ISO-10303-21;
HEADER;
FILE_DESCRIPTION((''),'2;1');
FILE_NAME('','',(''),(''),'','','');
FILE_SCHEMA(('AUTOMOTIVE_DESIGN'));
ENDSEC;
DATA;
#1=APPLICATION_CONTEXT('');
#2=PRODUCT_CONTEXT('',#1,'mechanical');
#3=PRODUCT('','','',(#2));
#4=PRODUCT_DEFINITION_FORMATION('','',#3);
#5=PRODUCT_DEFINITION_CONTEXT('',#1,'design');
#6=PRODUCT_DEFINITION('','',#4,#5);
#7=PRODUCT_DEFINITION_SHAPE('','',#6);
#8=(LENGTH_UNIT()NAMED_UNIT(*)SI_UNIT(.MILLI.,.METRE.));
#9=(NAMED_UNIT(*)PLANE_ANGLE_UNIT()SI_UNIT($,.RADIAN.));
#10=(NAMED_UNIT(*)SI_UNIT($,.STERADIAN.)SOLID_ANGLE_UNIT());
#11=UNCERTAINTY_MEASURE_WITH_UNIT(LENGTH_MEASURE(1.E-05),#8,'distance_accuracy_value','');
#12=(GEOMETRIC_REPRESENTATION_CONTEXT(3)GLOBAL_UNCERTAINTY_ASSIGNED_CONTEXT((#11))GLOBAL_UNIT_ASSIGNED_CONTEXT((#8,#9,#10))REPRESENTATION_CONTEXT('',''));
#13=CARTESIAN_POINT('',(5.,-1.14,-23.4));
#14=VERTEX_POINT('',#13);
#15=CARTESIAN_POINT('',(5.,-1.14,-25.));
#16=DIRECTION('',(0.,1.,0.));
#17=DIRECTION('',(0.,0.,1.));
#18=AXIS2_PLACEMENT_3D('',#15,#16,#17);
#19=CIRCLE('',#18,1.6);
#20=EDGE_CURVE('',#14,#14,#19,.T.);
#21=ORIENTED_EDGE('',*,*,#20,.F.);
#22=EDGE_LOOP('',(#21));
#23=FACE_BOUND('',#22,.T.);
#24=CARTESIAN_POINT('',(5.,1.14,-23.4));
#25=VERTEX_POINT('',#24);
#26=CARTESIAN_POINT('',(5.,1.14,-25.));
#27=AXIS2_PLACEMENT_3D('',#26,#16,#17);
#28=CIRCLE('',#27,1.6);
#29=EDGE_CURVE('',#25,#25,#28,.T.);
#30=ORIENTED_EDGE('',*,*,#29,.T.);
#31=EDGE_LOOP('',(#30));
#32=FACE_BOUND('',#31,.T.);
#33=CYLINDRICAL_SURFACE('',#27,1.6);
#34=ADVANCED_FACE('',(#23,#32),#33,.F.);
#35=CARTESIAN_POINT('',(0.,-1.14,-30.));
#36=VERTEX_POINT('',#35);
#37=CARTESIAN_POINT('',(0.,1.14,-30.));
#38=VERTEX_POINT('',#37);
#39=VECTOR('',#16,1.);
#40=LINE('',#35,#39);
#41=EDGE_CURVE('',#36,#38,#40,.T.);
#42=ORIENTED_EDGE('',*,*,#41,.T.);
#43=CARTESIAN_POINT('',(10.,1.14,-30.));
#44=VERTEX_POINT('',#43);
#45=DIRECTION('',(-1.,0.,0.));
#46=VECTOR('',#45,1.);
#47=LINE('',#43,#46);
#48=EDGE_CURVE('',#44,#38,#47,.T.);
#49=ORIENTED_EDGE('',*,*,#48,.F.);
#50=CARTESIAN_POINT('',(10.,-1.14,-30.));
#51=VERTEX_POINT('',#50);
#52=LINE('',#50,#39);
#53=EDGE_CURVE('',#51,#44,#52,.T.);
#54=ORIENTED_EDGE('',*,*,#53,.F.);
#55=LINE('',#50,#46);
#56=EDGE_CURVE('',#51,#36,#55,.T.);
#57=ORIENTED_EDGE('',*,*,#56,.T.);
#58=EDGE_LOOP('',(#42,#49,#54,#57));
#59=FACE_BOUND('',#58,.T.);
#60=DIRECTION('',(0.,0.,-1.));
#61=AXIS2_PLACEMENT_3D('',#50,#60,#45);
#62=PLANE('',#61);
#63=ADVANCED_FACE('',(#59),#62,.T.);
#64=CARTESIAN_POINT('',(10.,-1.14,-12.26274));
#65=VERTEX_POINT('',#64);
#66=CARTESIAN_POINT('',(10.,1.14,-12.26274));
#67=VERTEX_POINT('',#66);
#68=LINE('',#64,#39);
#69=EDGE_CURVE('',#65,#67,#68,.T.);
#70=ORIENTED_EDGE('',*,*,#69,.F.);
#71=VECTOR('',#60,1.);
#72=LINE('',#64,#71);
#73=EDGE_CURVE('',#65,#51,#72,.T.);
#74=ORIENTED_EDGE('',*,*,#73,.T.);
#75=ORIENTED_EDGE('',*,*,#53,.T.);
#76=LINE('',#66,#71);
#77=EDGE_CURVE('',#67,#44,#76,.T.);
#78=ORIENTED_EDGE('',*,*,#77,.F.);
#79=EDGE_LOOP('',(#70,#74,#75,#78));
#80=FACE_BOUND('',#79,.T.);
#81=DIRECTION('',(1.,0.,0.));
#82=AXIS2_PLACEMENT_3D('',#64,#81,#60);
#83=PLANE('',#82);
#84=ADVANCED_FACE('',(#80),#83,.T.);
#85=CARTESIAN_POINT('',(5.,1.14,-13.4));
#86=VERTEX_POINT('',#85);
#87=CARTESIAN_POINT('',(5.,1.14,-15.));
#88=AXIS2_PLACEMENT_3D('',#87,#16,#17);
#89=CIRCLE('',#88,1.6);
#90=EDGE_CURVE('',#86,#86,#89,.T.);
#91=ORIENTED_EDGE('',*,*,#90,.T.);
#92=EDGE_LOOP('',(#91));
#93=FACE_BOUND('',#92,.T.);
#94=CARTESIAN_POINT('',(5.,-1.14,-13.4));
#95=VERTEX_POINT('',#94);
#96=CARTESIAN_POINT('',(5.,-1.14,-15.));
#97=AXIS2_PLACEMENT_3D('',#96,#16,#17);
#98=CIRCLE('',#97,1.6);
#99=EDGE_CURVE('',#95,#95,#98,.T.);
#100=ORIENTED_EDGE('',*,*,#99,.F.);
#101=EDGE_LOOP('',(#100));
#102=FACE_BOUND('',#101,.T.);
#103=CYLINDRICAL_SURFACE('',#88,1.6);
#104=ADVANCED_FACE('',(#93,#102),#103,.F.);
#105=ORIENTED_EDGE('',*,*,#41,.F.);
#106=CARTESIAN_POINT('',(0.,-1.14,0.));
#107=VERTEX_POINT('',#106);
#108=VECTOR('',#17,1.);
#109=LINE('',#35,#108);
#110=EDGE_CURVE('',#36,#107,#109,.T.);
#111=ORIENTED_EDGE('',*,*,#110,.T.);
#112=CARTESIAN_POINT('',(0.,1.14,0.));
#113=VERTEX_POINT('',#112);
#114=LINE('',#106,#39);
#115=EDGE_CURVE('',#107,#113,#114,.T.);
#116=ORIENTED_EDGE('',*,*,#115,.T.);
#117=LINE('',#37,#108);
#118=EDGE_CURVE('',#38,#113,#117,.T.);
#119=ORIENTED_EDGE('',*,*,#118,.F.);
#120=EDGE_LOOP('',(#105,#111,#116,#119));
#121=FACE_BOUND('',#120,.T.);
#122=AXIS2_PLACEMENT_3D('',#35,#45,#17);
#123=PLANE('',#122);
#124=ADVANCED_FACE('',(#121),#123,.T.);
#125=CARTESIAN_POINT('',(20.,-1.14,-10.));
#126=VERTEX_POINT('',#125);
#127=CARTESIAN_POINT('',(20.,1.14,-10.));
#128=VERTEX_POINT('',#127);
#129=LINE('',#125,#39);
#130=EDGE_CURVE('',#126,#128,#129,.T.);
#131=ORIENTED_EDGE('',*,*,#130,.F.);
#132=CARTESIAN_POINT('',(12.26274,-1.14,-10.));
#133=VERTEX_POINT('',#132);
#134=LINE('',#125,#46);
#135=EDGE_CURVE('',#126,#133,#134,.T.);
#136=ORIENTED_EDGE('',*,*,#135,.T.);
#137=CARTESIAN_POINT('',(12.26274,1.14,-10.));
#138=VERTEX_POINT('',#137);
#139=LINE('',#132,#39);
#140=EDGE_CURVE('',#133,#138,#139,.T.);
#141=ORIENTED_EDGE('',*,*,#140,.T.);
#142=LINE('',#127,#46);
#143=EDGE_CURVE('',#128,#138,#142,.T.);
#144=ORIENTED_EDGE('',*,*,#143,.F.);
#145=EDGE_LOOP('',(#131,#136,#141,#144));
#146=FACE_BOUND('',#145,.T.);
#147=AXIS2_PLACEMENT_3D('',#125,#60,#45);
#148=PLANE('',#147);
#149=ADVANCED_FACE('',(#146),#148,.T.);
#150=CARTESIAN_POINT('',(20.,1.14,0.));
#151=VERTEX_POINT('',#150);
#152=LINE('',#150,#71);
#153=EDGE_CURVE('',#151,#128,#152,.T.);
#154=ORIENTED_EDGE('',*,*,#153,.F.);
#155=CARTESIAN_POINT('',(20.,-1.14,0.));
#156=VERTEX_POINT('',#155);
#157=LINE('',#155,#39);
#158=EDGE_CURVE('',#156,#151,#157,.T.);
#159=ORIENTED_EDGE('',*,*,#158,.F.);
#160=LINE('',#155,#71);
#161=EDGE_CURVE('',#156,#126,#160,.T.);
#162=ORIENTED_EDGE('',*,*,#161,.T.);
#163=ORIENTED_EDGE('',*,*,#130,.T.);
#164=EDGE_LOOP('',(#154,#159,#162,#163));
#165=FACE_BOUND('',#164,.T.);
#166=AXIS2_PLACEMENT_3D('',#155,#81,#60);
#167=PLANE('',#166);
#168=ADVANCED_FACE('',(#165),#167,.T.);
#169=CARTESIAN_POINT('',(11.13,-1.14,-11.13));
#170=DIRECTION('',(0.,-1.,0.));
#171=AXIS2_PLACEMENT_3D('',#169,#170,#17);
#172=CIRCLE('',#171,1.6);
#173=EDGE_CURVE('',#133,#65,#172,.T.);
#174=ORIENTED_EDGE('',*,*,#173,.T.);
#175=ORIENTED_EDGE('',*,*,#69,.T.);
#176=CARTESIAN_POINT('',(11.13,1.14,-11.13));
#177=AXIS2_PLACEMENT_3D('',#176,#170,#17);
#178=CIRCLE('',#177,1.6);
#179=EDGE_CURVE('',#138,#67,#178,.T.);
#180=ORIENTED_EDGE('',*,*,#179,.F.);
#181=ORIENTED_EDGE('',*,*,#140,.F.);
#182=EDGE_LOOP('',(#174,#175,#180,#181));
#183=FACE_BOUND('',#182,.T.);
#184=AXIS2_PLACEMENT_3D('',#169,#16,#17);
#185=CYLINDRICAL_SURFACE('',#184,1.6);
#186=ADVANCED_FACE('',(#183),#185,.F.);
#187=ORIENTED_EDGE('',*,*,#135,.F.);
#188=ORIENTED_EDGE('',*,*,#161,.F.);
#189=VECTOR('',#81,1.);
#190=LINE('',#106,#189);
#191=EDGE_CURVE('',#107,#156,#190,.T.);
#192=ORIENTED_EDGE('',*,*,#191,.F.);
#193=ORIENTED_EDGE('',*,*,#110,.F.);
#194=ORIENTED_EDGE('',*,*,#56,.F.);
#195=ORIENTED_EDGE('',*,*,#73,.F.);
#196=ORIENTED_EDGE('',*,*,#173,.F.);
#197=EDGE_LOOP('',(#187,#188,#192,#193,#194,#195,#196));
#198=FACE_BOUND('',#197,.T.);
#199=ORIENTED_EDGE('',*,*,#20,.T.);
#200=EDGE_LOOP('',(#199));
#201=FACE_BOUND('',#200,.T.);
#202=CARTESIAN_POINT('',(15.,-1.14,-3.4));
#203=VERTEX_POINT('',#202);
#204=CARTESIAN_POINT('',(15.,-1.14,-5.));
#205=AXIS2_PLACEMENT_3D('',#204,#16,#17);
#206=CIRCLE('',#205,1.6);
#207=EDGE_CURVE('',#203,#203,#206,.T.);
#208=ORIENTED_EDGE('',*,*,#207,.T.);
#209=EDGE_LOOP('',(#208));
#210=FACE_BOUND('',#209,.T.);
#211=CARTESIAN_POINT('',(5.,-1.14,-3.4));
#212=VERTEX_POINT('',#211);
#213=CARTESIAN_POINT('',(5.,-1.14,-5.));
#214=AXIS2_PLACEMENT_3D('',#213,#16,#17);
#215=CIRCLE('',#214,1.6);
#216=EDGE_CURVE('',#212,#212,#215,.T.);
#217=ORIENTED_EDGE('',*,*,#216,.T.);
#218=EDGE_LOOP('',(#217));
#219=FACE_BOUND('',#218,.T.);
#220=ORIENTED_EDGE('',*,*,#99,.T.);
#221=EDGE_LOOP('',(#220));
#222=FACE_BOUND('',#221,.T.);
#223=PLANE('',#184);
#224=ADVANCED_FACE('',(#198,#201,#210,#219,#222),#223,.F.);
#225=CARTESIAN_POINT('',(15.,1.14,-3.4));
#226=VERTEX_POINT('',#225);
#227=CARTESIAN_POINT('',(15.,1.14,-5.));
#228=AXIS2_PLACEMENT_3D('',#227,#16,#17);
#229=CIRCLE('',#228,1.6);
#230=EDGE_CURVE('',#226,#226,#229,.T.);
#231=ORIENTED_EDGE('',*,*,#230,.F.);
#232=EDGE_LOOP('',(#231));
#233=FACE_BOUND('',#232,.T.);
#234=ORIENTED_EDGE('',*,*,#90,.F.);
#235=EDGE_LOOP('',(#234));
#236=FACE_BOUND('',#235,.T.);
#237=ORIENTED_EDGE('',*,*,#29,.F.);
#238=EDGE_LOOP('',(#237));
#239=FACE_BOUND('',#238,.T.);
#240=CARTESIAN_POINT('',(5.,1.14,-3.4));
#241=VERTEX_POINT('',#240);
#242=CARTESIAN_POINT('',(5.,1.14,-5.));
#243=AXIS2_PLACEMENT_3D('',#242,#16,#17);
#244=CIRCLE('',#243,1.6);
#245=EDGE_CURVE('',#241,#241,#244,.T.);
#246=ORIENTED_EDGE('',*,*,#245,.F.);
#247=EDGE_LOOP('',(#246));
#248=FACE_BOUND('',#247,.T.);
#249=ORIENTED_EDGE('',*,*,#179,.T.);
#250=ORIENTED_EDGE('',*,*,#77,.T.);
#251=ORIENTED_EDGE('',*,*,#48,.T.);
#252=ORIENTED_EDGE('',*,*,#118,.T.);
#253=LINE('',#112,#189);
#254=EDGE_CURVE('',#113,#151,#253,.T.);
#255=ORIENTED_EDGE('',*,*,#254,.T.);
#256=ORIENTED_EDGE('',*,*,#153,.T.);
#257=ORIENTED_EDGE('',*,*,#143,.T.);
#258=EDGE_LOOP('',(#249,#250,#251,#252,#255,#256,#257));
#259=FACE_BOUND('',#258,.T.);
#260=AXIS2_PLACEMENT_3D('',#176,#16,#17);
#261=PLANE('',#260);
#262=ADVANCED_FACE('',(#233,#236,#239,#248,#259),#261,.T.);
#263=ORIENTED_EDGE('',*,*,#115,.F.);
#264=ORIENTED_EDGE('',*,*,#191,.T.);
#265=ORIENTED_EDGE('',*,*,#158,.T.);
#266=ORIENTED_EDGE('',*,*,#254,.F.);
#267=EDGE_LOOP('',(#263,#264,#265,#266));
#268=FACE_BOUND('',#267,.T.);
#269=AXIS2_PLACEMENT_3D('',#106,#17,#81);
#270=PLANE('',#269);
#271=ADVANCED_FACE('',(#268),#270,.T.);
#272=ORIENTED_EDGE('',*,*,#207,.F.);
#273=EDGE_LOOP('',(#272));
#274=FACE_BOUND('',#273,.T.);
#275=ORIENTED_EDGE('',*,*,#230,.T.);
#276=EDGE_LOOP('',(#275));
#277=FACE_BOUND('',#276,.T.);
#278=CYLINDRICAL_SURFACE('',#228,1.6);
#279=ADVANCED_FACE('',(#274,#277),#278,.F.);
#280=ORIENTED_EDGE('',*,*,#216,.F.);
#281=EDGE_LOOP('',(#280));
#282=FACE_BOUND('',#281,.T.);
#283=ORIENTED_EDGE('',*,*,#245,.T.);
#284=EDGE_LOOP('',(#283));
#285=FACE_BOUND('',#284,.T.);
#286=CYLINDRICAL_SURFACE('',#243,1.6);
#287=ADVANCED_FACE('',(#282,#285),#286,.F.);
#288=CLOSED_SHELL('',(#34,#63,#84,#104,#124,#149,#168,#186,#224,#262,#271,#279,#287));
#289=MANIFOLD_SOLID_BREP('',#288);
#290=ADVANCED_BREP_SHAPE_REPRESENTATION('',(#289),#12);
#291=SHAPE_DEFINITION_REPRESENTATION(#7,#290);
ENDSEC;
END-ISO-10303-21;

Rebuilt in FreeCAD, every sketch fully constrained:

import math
import FreeCAD as App
import Part
import Sketcher
from FreeCAD import Vector

doc = App.newDocument("Part")
body = doc.addObject("PartDesign::Body", "Body")

# Sketch on XZ plane
sketch1 = body.newObject("Sketcher::SketchObject", "Sketch")
sketch1.AttachmentSupport = (doc.getObject("XZ_Plane"), [""])
sketch1.MapMode = "FlatFace"
sketch1.addGeometry(Part.LineSegment(Vector(10, -12.3, 0), Vector(10, -30, 0)), False)
sketch1.addGeometry(Part.LineSegment(Vector(10, -30, 0), Vector(0, -30, 0)), False)
sketch1.addGeometry(Part.LineSegment(Vector(0, -30, 0), Vector(0, 0, 0)), False)
sketch1.addGeometry(Part.LineSegment(Vector(0, 0, 0), Vector(20, 0, 0)), False)
sketch1.addGeometry(Part.LineSegment(Vector(20, 0, 0), Vector(20, -10, 0)), False)
sketch1.addGeometry(Part.LineSegment(Vector(20, -10, 0), Vector(12.3, -10, 0)), False)
sketch1.addGeometry(Part.ArcOfCircle(Part.Circle(Vector(11.1, -11.1, 0), Vector(0, 0, 1), 1.6), math.radians(45), math.radians(225)), False)
sketch1.addConstraint(Sketcher.Constraint("Coincident", 0, 2, 1, 1))
sketch1.addConstraint(Sketcher.Constraint("Coincident", 1, 2, 2, 1))
sketch1.addConstraint(Sketcher.Constraint("Coincident", 2, 2, 3, 1))
sketch1.addConstraint(Sketcher.Constraint("Coincident", 3, 2, 4, 1))
sketch1.addConstraint(Sketcher.Constraint("Coincident", 4, 2, 5, 1))
sketch1.addConstraint(Sketcher.Constraint("Coincident", 5, 2, 6, 1))
sketch1.addConstraint(Sketcher.Constraint("Coincident", 6, 2, 0, 1))
sketch1.addConstraint(Sketcher.Constraint("Vertical", 0))
sketch1.addConstraint(Sketcher.Constraint("Horizontal", 1))
sketch1.addConstraint(Sketcher.Constraint("Vertical", 2))
sketch1.addConstraint(Sketcher.Constraint("Horizontal", 3))
sketch1.addConstraint(Sketcher.Constraint("Vertical", 4))
sketch1.addConstraint(Sketcher.Constraint("Horizontal", 5))
sketch1.addConstraint(Sketcher.Constraint("Coincident", 2, 2, -1, 1))
sketch1.addConstraint(Sketcher.Constraint("Equal", 1, 4))
sketch1.addConstraint(Sketcher.Constraint("Radius", 6, 1.6))
sketch1.addConstraint(Sketcher.Constraint("DistanceX", 1, 2, 1, 1, 10.0))
sketch1.addConstraint(Sketcher.Constraint("DistanceX", 3, 1, 3, 2, 20.0))
sketch1.addConstraint(Sketcher.Constraint("DistanceY", 2, 1, 2, 2, 30.0))
sketch1.addConstraint(Sketcher.Constraint("DistanceX", -1, 1, 6, 3, 11.13))
sketch1.addConstraint(Sketcher.Constraint("DistanceY", 6, 3, -1, 1, 11.13))
pad1 = body.newObject("PartDesign::Pad", "Pad")
pad1.Profile = sketch1
pad1.Length = 2.28
pad1.Midplane = True

# Sketch on XZ plane
sketch2 = body.newObject("Sketcher::SketchObject", "Sketch001")
sketch2.AttachmentSupport = (doc.getObject("XZ_Plane"), [""])
sketch2.MapMode = "FlatFace"
sketch2.AttachmentOffset = App.Placement(Vector(0, 0, -1.14), App.Rotation())
sketch2.addGeometry(Part.Circle(Vector(5, -25, 0), Vector(0, 0, 1), 1.6), False)
sketch2.addGeometry(Part.Circle(Vector(5, -5, 0), Vector(0, 0, 1), 1.6), False)
sketch2.addGeometry(Part.Circle(Vector(15, -5, 0), Vector(0, 0, 1), 1.6), False)
sketch2.addGeometry(Part.Circle(Vector(5, -15, 0), Vector(0, 0, 1), 1.6), False)
sketch2.addConstraint(Sketcher.Constraint("Equal", 0, 1))
sketch2.addConstraint(Sketcher.Constraint("Equal", 1, 2))
sketch2.addConstraint(Sketcher.Constraint("Equal", 2, 3))
sketch2.addConstraint(Sketcher.Constraint("Horizontal", 1, 3, 2, 3))
sketch2.addConstraint(Sketcher.Constraint("Vertical", 0, 3, 1, 3))
sketch2.addConstraint(Sketcher.Constraint("Vertical", 1, 3, 3, 3))
sketch2.addConstraint(Sketcher.Constraint("Diameter", 0, 3.2))
sketch2.addConstraint(Sketcher.Constraint("DistanceX", -1, 1, 0, 3, 5.0))
sketch2.addConstraint(Sketcher.Constraint("DistanceY", 0, 3, -1, 1, 25.0))
sketch2.addConstraint(Sketcher.Constraint("DistanceY", 1, 3, -1, 1, 5.0))
sketch2.addConstraint(Sketcher.Constraint("DistanceX", -1, 1, 2, 3, 15.0))
sketch2.addConstraint(Sketcher.Constraint("DistanceY", 3, 3, -1, 1, 15.0))
doc.recompute()
hole = body.newObject("PartDesign::Hole", "Hole")
hole.Profile = sketch2
hole.ThreadType = "None"
hole.Diameter = 3.2
hole.DepthType = "Dimension"
hole.Depth = 10
hole.DrillPoint = "Angled"
hole.DrillPointAngle = 118
hole.Reversed = True

doc.recompute()
